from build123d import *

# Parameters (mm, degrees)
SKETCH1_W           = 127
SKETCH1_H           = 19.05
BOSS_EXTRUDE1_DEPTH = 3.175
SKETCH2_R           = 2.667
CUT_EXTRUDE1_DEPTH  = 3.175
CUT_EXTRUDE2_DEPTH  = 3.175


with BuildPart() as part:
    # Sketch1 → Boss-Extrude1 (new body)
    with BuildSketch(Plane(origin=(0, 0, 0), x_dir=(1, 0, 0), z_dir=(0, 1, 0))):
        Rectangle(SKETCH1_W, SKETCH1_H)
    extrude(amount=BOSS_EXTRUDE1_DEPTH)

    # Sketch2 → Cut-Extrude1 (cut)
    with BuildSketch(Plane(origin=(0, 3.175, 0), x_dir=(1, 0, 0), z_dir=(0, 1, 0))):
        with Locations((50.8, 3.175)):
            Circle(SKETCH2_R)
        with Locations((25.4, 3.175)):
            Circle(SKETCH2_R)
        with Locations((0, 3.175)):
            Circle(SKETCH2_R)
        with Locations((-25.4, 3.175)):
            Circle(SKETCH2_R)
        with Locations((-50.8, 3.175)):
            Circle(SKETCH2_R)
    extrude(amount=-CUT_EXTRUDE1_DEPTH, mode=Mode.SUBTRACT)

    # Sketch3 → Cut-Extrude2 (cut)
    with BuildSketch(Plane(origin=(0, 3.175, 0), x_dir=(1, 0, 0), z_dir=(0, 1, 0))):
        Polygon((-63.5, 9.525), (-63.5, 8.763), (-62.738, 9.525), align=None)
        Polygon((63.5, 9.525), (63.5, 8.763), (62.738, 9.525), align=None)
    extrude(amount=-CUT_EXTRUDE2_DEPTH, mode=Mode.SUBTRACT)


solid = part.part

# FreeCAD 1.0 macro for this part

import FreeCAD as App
import Part
import Sketcher
from FreeCAD import Vector
Q = App.Units.Quantity


def add_polygon(sketch, points):
    """Adds a closed chain of lines whose ends are joined by coincident constraints."""
    first, n = sketch.GeometryCount, len(points)
    for a, b in zip(points, points[1:] + points[:1]):
        sketch.addGeometry(Part.LineSegment(App.Vector(*a, 0), App.Vector(*b, 0)), False)
    for i in range(n):
        sketch.addConstraint(Sketcher.Constraint("Coincident", first + i, 2, first + (i + 1) % n, 1))

doc = App.newDocument("Part")
params = doc.addObject("Spreadsheet::Sheet", "Params")
for row, (alias, value) in enumerate([
    ("sketch1_width", "5 in"),
    ("sketch1_height", "0.75 in"),
    ("pad1_length", "0.125 in"),
    ("sketch2_diameter", "0.21 in"),
    ("pocket1_length", "0.125 in"),
    ("sketch3_width", "0.03 in"),
    ("pocket2_length", "0.125 in"),
], start=1):
    params.set(f"A{row}", alias)
    params.set(f"B{row}", "=" + value)
    params.setAlias(f"B{row}", alias)

body = doc.addObject("PartDesign::Body", "Body")

# Sketch on XZ plane
sketch1 = body.newObject("Sketcher::SketchObject", "Sketch")
sketch1.AttachmentSupport = (doc.getObject("XZ_Plane"), [""])
sketch1.MapMode = "FlatFace"
add_polygon(sketch1, [(-63.5, -9.525), (-63.5, 9.525), (63.5, 9.525), (63.5, -9.525)])  # lines 0-3
sketch1.addConstraint([
    Sketcher.Constraint("Vertical", 0),
    Sketcher.Constraint("Horizontal", 1),
    Sketcher.Constraint("Vertical", 2),
    Sketcher.Constraint("Horizontal", 3),
    Sketcher.Constraint("Symmetric", 0, 2, 2, 2, -1, 1),
    Sketcher.Constraint("DistanceX", 1, 1, 1, 2, Q("5 in")),
    Sketcher.Constraint("DistanceY", 0, 1, 0, 2, Q("0.75 in")),
])
sketch1.setExpression("Constraints[9]", "Params.sketch1_width")
sketch1.setExpression("Constraints[10]", "Params.sketch1_height")
pad1 = body.newObject("PartDesign::Pad", "Pad")
pad1.Profile = sketch1
pad1.setExpression("Length", "Params.pad1_length")
pad1.Reversed = True

# Sketch on XZ plane
sketch2 = body.newObject("Sketcher::SketchObject", "Sketch001")
sketch2.AttachmentSupport = (doc.getObject("XZ_Plane"), [""])
sketch2.MapMode = "FlatFace"
sketch2.AttachmentOffset = App.Placement(Vector(0, 0, -0.125 * 25.4), App.Rotation())
sketch2.addGeometry([
    Part.Circle(Vector(50.8, -3.175, 0), Vector(0, 0, 1), 2.667),  # 0
    Part.Circle(Vector(25.4, -3.175, 0), Vector(0, 0, 1), 2.667),  # 1
    Part.Circle(Vector(0, -3.175, 0), Vector(0, 0, 1), 2.667),  # 2
    Part.Circle(Vector(-25.4, -3.175, 0), Vector(0, 0, 1), 2.667),  # 3
    Part.Circle(Vector(-50.8, -3.175, 0), Vector(0, 0, 1), 2.667),  # 4
], False)
sketch2.addConstraint([
    Sketcher.Constraint("Equal", 0, 1),
    Sketcher.Constraint("Equal", 1, 2),
    Sketcher.Constraint("Equal", 2, 3),
    Sketcher.Constraint("Equal", 3, 4),
    Sketcher.Constraint("Symmetric", 1, 3, 3, 3, -2),
    Sketcher.Constraint("Symmetric", 0, 3, 4, 3, -2),
    Sketcher.Constraint("PointOnObject", 2, 3, -2),
    Sketcher.Constraint("Horizontal", 0, 3, 1, 3),
    Sketcher.Constraint("Horizontal", 1, 3, 2, 3),
    Sketcher.Constraint("Diameter", 0, Q("0.21 in")),
    Sketcher.Constraint("DistanceX", -1, 1, 0, 3, Q("2 in")),
    Sketcher.Constraint("DistanceX", -1, 1, 1, 3, Q("1 in")),
    Sketcher.Constraint("DistanceY", 0, 3, -1, 1, Q("0.125 in")),
])
sketch2.setExpression("Constraints[9]", "Params.sketch2_diameter")
pocket1 = body.newObject("PartDesign::Pocket", "Pocket")
pocket1.Profile = sketch2
pocket1.setExpression("Length", "Params.pocket1_length")
pocket1.Reversed = True

# Sketch on XZ plane
sketch3 = body.newObject("Sketcher::SketchObject", "Sketch002")
sketch3.AttachmentSupport = (doc.getObject("XZ_Plane"), [""])
sketch3.MapMode = "FlatFace"
sketch3.AttachmentOffset = App.Placement(Vector(0, 0, -0.125 * 25.4), App.Rotation())
add_polygon(sketch3, [(-63.5, -9.525), (-63.5, -8.763), (-62.738, -9.525)])  # lines 0-2
add_polygon(sketch3, [(63.5, -8.763), (63.5, -9.525), (62.738, -9.525)])  # lines 3-5
sketch3.addConstraint([
    Sketcher.Constraint("Vertical", 0),
    Sketcher.Constraint("Horizontal", 2),
    Sketcher.Constraint("Vertical", 3),
    Sketcher.Constraint("Horizontal", 4),
    Sketcher.Constraint("Symmetric", 2, 2, 3, 2, -2),
    Sketcher.Constraint("Perpendicular", 1, 5),
    Sketcher.Constraint("Horizontal", 0, 2, 5, 2),
    Sketcher.Constraint("Equal", 2, 4),
    Sketcher.Constraint("DistanceX", 2, 2, 3, 2, Q("5 in")),
    Sketcher.Constraint("DistanceX", 2, 2, 2, 1, Q("0.03 in")),
    Sketcher.Constraint("DistanceY", 0, 2, -1, 1, Q("0.345 in")),
])
sketch3.setExpression("Constraints[15]", "Params.sketch3_width")
pocket2 = body.newObject("PartDesign::Pocket", "Pocket001")
pocket2.Profile = sketch3
pocket2.setExpression("Length", "Params.pocket2_length")
pocket2.Reversed = True

doc.recompute()
